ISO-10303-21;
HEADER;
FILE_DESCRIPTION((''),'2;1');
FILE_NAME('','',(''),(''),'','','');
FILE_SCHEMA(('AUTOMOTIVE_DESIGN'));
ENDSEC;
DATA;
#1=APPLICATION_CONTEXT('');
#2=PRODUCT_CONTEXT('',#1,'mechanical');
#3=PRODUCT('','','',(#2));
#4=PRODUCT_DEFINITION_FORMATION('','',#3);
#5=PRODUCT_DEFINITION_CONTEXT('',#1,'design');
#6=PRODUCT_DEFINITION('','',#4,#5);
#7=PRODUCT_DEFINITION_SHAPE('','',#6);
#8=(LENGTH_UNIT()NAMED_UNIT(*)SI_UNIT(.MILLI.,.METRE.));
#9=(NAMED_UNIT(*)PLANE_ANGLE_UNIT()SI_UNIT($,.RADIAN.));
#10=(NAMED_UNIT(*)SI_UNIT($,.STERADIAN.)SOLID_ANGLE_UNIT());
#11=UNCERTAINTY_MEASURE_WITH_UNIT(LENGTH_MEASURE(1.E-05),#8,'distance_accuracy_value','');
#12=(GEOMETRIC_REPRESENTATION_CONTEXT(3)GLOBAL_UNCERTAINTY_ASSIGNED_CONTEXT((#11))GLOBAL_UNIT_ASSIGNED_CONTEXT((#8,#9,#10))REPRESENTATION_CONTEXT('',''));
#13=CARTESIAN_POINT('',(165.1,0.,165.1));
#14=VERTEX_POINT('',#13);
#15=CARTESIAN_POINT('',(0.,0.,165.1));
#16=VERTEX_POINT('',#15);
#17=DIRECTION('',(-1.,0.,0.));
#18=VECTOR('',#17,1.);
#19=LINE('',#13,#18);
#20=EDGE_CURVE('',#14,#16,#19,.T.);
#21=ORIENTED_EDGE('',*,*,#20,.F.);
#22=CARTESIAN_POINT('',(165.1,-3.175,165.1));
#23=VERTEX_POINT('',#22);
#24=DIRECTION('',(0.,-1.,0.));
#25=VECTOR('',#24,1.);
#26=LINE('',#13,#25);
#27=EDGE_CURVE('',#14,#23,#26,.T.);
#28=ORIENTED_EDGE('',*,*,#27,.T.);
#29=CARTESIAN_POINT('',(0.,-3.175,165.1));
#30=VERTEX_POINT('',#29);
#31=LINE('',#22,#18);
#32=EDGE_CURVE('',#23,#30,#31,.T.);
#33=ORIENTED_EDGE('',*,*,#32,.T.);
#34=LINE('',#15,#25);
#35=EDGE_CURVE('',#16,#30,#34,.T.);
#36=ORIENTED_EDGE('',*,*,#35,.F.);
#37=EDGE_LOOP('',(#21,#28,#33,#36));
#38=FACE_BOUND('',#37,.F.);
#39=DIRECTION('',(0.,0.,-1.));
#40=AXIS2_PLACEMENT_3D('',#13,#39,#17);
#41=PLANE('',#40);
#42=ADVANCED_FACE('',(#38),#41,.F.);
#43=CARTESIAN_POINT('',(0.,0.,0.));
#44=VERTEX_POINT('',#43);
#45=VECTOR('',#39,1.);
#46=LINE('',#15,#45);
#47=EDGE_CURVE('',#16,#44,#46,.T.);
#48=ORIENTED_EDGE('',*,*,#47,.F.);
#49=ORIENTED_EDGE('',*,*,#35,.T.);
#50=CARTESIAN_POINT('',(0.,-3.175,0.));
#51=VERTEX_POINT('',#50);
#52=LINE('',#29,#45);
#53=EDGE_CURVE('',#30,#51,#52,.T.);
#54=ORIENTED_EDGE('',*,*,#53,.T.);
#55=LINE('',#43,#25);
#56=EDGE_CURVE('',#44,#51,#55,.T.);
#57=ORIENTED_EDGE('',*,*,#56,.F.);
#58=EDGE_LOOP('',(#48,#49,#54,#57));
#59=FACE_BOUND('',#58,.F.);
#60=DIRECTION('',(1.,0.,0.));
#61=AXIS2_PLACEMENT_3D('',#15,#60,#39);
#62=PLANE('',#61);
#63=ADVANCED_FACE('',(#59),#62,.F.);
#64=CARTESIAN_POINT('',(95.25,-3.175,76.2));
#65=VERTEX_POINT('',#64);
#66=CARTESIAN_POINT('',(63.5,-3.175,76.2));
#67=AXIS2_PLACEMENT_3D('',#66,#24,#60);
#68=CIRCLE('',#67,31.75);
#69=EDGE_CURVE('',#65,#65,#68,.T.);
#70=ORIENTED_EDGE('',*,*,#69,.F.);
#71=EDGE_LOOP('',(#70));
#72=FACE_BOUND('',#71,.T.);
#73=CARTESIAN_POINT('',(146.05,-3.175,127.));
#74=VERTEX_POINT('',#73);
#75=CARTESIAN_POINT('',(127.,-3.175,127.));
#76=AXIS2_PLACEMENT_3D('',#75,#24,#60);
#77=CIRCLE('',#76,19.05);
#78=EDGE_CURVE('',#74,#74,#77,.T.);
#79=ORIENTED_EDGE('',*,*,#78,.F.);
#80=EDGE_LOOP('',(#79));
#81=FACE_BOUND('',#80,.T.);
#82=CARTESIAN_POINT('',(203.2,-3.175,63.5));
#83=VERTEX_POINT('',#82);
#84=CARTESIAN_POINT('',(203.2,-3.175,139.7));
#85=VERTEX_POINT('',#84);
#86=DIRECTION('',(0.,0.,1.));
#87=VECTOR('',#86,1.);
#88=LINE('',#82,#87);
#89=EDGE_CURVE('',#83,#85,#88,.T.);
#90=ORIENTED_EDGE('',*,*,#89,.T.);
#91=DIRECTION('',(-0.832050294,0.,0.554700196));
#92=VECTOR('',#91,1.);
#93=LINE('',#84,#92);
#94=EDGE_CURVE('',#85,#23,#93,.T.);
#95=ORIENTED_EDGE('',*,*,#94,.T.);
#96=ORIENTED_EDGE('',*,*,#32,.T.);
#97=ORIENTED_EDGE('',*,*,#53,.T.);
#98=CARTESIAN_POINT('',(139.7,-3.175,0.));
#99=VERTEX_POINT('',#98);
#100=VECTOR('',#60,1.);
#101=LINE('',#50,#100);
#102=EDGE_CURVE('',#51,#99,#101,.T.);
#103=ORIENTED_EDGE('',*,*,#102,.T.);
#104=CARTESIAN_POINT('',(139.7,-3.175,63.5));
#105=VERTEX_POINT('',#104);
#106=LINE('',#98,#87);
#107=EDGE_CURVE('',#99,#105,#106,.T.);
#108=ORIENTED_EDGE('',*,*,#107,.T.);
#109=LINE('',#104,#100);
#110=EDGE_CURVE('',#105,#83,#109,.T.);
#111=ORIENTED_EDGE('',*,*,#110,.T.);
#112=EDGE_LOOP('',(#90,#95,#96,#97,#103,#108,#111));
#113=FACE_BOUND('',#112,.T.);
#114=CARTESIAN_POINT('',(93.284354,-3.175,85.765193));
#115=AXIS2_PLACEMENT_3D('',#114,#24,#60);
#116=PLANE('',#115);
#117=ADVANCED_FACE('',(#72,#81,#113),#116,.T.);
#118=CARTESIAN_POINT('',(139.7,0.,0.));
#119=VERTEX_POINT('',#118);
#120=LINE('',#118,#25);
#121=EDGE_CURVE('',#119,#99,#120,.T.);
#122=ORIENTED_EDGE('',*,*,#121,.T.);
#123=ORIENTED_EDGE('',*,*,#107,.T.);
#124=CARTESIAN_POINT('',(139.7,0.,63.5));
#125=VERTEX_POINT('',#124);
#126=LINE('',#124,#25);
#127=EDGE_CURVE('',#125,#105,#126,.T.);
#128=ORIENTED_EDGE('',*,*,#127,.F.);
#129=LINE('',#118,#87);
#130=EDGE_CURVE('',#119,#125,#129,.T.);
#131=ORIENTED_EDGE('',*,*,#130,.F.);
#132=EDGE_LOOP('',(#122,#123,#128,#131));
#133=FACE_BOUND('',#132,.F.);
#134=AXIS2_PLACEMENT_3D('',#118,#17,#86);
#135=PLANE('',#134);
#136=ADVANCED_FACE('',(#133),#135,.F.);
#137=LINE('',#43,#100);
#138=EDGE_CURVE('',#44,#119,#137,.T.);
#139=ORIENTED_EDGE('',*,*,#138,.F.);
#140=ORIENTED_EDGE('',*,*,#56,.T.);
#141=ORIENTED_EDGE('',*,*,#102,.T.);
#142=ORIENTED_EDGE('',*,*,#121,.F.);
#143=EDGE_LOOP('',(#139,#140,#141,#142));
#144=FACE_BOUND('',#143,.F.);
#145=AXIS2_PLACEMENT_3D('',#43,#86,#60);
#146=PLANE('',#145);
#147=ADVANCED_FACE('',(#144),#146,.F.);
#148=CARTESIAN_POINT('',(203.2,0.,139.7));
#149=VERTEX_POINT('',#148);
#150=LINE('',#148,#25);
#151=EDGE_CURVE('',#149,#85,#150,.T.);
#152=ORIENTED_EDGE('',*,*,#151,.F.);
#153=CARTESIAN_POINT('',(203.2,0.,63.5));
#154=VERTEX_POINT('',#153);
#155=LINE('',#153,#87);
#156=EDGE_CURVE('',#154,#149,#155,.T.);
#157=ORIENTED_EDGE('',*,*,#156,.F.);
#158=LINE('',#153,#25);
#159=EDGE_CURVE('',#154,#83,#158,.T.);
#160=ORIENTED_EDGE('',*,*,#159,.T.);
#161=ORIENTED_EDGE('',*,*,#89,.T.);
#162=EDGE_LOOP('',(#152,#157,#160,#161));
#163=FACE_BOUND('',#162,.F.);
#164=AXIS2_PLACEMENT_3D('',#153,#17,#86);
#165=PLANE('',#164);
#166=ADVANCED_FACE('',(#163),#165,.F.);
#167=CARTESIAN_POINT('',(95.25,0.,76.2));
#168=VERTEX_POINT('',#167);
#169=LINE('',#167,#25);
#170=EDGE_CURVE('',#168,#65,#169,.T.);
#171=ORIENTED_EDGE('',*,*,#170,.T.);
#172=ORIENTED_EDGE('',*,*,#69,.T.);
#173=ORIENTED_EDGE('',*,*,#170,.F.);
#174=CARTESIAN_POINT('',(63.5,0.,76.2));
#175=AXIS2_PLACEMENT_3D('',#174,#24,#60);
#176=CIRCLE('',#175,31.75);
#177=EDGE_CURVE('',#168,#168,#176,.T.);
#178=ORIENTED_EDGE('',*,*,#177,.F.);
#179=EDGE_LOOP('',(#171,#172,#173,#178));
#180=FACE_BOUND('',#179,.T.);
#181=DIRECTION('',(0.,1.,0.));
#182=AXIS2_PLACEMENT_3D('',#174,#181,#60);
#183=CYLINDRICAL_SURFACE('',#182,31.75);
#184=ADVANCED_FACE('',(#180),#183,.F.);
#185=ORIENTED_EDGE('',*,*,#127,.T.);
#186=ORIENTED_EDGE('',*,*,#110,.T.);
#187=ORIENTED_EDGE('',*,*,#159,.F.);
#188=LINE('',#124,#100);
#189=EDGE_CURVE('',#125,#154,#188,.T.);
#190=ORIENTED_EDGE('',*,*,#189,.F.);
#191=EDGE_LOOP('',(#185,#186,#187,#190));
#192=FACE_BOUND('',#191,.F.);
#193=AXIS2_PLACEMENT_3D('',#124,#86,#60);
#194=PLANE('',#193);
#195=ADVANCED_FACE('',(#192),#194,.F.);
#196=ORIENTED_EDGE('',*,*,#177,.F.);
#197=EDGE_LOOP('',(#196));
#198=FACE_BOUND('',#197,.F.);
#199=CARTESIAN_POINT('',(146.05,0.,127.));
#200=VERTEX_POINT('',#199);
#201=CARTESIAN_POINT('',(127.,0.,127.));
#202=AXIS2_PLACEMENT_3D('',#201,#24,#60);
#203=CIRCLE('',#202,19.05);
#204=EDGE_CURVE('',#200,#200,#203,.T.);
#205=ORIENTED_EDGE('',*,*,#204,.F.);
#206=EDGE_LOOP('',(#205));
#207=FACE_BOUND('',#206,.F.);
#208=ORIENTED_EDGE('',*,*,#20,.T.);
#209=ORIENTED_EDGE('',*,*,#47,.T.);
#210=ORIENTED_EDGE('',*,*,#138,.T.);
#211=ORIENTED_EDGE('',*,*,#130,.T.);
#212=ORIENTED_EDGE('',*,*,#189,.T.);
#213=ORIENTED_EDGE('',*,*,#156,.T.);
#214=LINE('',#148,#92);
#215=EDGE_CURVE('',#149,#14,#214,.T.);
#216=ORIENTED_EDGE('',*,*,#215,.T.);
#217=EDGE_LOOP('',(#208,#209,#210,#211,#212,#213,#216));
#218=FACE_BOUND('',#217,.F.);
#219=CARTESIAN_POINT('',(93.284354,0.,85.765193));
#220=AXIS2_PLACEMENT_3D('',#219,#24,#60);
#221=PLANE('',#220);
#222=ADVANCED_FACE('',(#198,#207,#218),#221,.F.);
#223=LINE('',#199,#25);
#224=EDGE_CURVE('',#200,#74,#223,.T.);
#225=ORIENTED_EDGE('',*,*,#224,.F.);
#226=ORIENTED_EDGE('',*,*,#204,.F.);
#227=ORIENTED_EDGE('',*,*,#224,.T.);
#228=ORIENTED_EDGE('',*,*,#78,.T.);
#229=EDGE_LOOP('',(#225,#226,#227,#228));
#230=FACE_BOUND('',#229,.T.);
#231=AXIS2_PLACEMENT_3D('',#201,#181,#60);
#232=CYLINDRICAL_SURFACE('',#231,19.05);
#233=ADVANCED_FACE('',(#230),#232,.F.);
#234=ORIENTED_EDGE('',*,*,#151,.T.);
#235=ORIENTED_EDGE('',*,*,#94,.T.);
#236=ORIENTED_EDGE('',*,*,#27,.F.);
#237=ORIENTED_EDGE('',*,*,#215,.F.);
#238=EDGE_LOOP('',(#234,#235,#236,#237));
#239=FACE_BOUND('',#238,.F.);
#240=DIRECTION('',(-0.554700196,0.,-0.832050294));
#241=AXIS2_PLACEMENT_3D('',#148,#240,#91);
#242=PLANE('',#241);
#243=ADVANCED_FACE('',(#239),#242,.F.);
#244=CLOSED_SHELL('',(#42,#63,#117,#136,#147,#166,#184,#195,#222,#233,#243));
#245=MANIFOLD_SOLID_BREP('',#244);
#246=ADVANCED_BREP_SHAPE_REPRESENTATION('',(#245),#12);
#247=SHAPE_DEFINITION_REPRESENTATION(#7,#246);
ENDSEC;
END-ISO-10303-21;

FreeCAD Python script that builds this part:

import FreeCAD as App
import Part
import Sketcher
from FreeCAD import Vector
Q = App.Units.Quantity


def add_polygon(sketch, points):
    """Adds a closed chain of lines whose ends are joined by coincident constraints."""
    first, n = sketch.GeometryCount, len(points)
    for a, b in zip(points, points[1:] + points[:1]):
        sketch.addGeometry(Part.LineSegment(App.Vector(*a, 0), App.Vector(*b, 0)), False)
    for i in range(n):
        sketch.addConstraint(Sketcher.Constraint("Coincident", first + i, 2, first + (i + 1) % n, 1))

doc = App.newDocument("Part")
body = doc.addObject("PartDesign::Body", "Body")

# Sketch on XZ plane
sketch1 = body.newObject("Sketcher::SketchObject", "Sketch")
sketch1.AttachmentSupport = (doc.getObject("XZ_Plane"), [""])
sketch1.MapMode = "FlatFace"
add_polygon(sketch1, [(0, 0), (140, 0), (140, 64), (203, 64), (203, 140), (165, 165), (0, 165)])  # lines 0-6
sketch1.addGeometry(Part.Circle(Vector(64, 76, 0), Vector(0, 0, 1), 32), False)  # 7
sketch1.addGeometry(Part.Circle(Vector(127, 127, 0), Vector(0, 0, 1), 19), False)  # 8
sketch1.addConstraint(Sketcher.Constraint("Horizontal", 0))
sketch1.addConstraint(Sketcher.Constraint("Vertical", 1))
sketch1.addConstraint(Sketcher.Constraint("Horizontal", 2))
sketch1.addConstraint(Sketcher.Constraint("Vertical", 3))
sketch1.addConstraint(Sketcher.Constraint("Horizontal", 5))
sketch1.addConstraint(Sketcher.Constraint("Vertical", 6))
sketch1.addConstraint(Sketcher.Constraint("Coincident", 6, 2, -1, 1))
sketch1.addConstraint(Sketcher.Constraint("Equal", 2, 1))
sketch1.addConstraint(Sketcher.Constraint("Equal", 5, 6))
sketch1.addConstraint(Sketcher.Constraint("Diameter", 7, Q("2.5 in")))
sketch1.addConstraint(Sketcher.Constraint("Diameter", 8, Q("1.5 in")))
sketch1.addConstraint(Sketcher.Constraint("DistanceY", 3, 1, 3, 2, Q("3 in")))
sketch1.addConstraint(Sketcher.Constraint("DistanceX", 0, 1, 0, 2, Q("5.5 in")))
sketch1.addConstraint(Sketcher.Constraint("DistanceX", 2, 1, 2, 2, Q("2.5 in")))
sketch1.addConstraint(Sketcher.Constraint("DistanceX", 5, 2, 5, 1, Q("6.5 in")))
sketch1.addConstraint(Sketcher.Constraint("DistanceY", -1, 1, 7, 3, Q("3 in")))
sketch1.addConstraint(Sketcher.Constraint("DistanceX", -1, 1, 8, 3, Q("5 in")))
sketch1.addConstraint(Sketcher.Constraint("DistanceY", -1, 1, 8, 3, Q("5 in")))
sketch1.addConstraint(Sketcher.Constraint("DistanceX", 7, 3, 0, 2, Q("3 in")))
pad1 = body.newObject("PartDesign::Pad", "Pad")
pad1.Profile = sketch1
pad1.Length = Q("0.125 in")

doc.recompute()
